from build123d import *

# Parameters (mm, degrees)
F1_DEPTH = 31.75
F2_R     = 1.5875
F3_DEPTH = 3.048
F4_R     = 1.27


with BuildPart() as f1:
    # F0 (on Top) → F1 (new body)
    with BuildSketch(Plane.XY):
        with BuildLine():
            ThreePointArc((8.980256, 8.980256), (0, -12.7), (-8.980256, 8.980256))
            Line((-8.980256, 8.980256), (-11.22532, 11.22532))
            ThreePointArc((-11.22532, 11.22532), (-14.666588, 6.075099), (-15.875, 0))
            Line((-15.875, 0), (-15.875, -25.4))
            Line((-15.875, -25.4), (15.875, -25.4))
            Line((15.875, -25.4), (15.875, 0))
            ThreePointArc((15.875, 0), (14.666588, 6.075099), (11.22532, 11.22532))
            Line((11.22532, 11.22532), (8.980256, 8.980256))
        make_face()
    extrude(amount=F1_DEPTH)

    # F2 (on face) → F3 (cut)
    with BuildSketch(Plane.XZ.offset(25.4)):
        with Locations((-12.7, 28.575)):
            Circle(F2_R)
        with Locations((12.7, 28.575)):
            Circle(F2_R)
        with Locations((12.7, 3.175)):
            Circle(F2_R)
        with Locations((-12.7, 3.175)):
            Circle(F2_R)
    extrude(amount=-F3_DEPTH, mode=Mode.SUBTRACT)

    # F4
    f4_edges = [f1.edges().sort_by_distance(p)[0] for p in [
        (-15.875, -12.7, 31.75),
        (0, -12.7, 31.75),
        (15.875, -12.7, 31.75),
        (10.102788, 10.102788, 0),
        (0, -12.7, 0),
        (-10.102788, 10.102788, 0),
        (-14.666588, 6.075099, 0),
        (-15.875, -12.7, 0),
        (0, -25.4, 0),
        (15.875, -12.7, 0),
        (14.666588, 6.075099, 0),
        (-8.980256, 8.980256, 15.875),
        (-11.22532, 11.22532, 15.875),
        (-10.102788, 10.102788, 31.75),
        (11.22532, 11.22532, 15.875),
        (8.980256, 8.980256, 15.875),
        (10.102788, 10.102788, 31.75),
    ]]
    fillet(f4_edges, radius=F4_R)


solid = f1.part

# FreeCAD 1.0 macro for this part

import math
import FreeCAD as App
import Part
import Sketcher

V = App.Vector
Q = App.Units.Quantity


def edges_at(feature, points):
    """Names of the edges that pass closest to the given points."""
    edges = feature.Shape.Edges
    near = lambda p: min(range(len(edges)), key=lambda i: edges[i].distToShape(Part.Vertex(*p))[0])
    return sorted({f"Edge{near(p) + 1}" for p in points})

doc = App.newDocument("Part")
body = doc.addObject("PartDesign::Body", "Body")

sketch1 = body.newObject("Sketcher::SketchObject", "Sketch")
sketch1.AttachmentSupport = (doc.getObject("XY_Plane"), [""])
sketch1.MapMode = "FlatFace"
sketch1.addGeometry([
    Part.ArcOfCircle(Part.Circle(V(0, 0, 0), V(0, 0, 1), 12.7), math.radians(135), math.radians(405)),
    Part.LineSegment(V(-9, 9, 0), V(-11.2, 11.2, 0)),
    Part.ArcOfCircle(Part.Circle(V(0, 0, 0), V(0, 0, 1), 15.9), math.radians(135), math.radians(180)),
    Part.LineSegment(V(-15.9, 0, 0), V(-15.9, -25.4, 0)),
    Part.LineSegment(V(-15.9, -25.4, 0), V(15.9, -25.4, 0)),
    Part.LineSegment(V(15.9, -25.4, 0), V(15.9, 0, 0)),
    Part.ArcOfCircle(Part.Circle(V(0, 0, 0), V(0, 0, 1), 15.9), math.radians(0), math.radians(45)),
    Part.LineSegment(V(11.2, 11.2, 0), V(9, 9, 0)),
], False)
sketch1.addConstraint([
    Sketcher.Constraint("Coincident", 0, 1, 1, 1),
    Sketcher.Constraint("Coincident", 1, 2, 2, 1),
    Sketcher.Constraint("Tangent", 2, 2, 3, 1),
    Sketcher.Constraint("Coincident", 3, 2, 4, 1),
    Sketcher.Constraint("Coincident", 4, 2, 5, 1),
    Sketcher.Constraint("Tangent", 5, 2, 6, 1),
    Sketcher.Constraint("Coincident", 6, 2, 7, 1),
    Sketcher.Constraint("Coincident", 7, 2, 0, 2),
    Sketcher.Constraint("Vertical", 3),
    Sketcher.Constraint("Horizontal", 4),
    Sketcher.Constraint("Vertical", 5),
    Sketcher.Constraint("Coincident", 0, 3, -1, 1),
    Sketcher.Constraint("Coincident", 2, 3, -1, 1),
    Sketcher.Constraint("Coincident", 6, 3, -1, 1),
    Sketcher.Constraint("Equal", 2, 6),
    Sketcher.Constraint("Perpendicular", 1, 7),
    Sketcher.Constraint("Horizontal", 1, 2, 6, 2),
    Sketcher.Constraint("Horizontal", 0, 1, 7, 2),
    Sketcher.Constraint("Radius", 0, Q("0.5 in")),
    Sketcher.Constraint("DistanceY", 3, 2, 3, 1, Q("1 in")),
    Sketcher.Constraint("Radius", 2, Q("0.6249998 in")),
    Sketcher.Constraint("DistanceX", 1, 2, -1, 1, Q("11.22532 mm")),
])
pad1 = body.newObject("PartDesign::Pad", "Pad")
pad1.Profile = sketch1
pad1.Length = Q("1.25 in")

sketch2 = body.newObject("Sketcher::SketchObject", "Sketch001")
sketch2.AttachmentSupport = (doc.getObject("XZ_Plane"), [""])
sketch2.MapMode = "FlatFace"
sketch2.AttachmentOffset = App.Placement(V(0, 0, 1 * 25.4), App.Rotation())
sketch2.addGeometry([
    Part.Circle(V(-12.7, 28.6, 0), V(0, 0, 1), 1.6),
    Part.Circle(V(12.7, 28.6, 0), V(0, 0, 1), 1.6),
    Part.Circle(V(12.7, 3.2, 0), V(0, 0, 1), 1.6),
    Part.Circle(V(-12.7, 3.2, 0), V(0, 0, 1), 1.6),
], False)
sketch2.addConstraint([
    Sketcher.Constraint("Equal", 0, 1),
    Sketcher.Constraint("Equal", 1, 2),
    Sketcher.Constraint("Equal", 2, 3),
    Sketcher.Constraint("Symmetric", 0, 3, 1, 3, -2),
    Sketcher.Constraint("Symmetric", 2, 3, 3, 3, -2),
    Sketcher.Constraint("Vertical", 1, 3, 2, 3),
    Sketcher.Constraint("Diameter", 0, Q("0.125 in")),
    Sketcher.Constraint("DistanceX", 0, 3, 1, 3, Q("1 in")),
    Sketcher.Constraint("DistanceY", 2, 3, 1, 3, Q("1 in")),
    Sketcher.Constraint("DistanceY", -1, 1, 0, 3, Q("1.125 in")),
])
pocket1 = body.newObject("PartDesign::Pocket", "Pocket")
pocket1.Profile = sketch2
pocket1.Length = Q("0.12 in")
doc.recompute()

fillet = body.newObject("PartDesign::Fillet", "Fillet")
fillet.Base = (pocket1, edges_at(pocket1, [
    (-15.875, -12.7, 31.75),
    (0, -12.7, 31.75),
    (15.875, -12.7, 31.75),
    (10.103, 10.103, 0),
    (0, -12.7, 0),
    (-10.103, 10.103, 0),
    (-14.667, 6.075, 0),
    (-15.875, -12.7, 0),
    (0, -25.4, 0),
    (15.875, -12.7, 0),
    (14.667, 6.075, 0),
    (-8.98, 8.98, 15.875),
    (-11.225, 11.225, 15.875),
    (-10.103, 10.103, 31.75),
    (11.225, 11.225, 15.875),
    (8.98, 8.98, 15.875),
    (10.103, 10.103, 31.75),
]))
fillet.Radius = Q("0.05 in")

doc.recompute()
